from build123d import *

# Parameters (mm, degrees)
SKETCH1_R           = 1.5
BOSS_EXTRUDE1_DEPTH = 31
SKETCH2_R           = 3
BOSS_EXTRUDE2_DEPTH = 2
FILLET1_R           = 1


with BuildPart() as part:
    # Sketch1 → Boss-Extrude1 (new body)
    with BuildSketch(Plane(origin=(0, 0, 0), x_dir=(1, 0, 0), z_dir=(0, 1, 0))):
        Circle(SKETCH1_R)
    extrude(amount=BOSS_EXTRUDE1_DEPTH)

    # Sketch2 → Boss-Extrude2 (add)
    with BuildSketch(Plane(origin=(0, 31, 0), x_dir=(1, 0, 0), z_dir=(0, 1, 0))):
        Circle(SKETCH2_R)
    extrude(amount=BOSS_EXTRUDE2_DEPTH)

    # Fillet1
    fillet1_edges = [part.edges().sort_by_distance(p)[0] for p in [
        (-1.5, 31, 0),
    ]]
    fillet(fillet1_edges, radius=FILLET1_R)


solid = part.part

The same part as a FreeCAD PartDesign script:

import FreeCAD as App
import Part
import Sketcher
from FreeCAD import Vector


def edges_at(feature, points):
    """Names of the edges that pass closest to the given points."""
    edges = feature.Shape.Edges
    near = lambda p: min(range(len(edges)), key=lambda i: edges[i].distToShape(Part.Vertex(*p))[0])
    return sorted({f"Edge{near(p) + 1}" for p in points})

doc = App.newDocument("Part")
body = doc.addObject("PartDesign::Body", "Body")

sketch1 = body.newObject("Sketcher::SketchObject", "Sketch")
sketch1.AttachmentSupport = (doc.getObject("XZ_Plane"), [""])
sketch1.MapMode = "FlatFace"
sketch1.addGeometry(Part.Circle(Vector(0, 0, 0), Vector(0, 0, 1), 1.5), False)
sketch1.addConstraint([
    Sketcher.Constraint("Coincident", 0, 3, -1, 1),
    Sketcher.Constraint("Diameter", 0, 3.0),
])
pad1 = body.newObject("PartDesign::Pad", "Pad")
pad1.Profile = sketch1
pad1.Length = 31
pad1.Reversed = True

sketch2 = body.newObject("Sketcher::SketchObject", "Sketch001")
sketch2.AttachmentSupport = (doc.getObject("XZ_Plane"), [""])
sketch2.MapMode = "FlatFace"
sketch2.AttachmentOffset = App.Placement(Vector(0, 0, -31), App.Rotation())
sketch2.addGeometry(Part.Circle(Vector(0, 0, 0), Vector(0, 0, 1), 3), False)
sketch2.addConstraint([
    Sketcher.Constraint("Coincident", 0, 3, -1, 1),
    Sketcher.Constraint("Diameter", 0, 6.0),
])
pad2 = body.newObject("PartDesign::Pad", "Pad001")
pad2.Profile = sketch2
pad2.Length = 2
pad2.Reversed = True
doc.recompute()

fillet = body.newObject("PartDesign::Fillet", "Fillet")
fillet.Base = (pad2, edges_at(pad2, [(-1.5, 31, 0)]))
fillet.Radius = 1

doc.recompute()
